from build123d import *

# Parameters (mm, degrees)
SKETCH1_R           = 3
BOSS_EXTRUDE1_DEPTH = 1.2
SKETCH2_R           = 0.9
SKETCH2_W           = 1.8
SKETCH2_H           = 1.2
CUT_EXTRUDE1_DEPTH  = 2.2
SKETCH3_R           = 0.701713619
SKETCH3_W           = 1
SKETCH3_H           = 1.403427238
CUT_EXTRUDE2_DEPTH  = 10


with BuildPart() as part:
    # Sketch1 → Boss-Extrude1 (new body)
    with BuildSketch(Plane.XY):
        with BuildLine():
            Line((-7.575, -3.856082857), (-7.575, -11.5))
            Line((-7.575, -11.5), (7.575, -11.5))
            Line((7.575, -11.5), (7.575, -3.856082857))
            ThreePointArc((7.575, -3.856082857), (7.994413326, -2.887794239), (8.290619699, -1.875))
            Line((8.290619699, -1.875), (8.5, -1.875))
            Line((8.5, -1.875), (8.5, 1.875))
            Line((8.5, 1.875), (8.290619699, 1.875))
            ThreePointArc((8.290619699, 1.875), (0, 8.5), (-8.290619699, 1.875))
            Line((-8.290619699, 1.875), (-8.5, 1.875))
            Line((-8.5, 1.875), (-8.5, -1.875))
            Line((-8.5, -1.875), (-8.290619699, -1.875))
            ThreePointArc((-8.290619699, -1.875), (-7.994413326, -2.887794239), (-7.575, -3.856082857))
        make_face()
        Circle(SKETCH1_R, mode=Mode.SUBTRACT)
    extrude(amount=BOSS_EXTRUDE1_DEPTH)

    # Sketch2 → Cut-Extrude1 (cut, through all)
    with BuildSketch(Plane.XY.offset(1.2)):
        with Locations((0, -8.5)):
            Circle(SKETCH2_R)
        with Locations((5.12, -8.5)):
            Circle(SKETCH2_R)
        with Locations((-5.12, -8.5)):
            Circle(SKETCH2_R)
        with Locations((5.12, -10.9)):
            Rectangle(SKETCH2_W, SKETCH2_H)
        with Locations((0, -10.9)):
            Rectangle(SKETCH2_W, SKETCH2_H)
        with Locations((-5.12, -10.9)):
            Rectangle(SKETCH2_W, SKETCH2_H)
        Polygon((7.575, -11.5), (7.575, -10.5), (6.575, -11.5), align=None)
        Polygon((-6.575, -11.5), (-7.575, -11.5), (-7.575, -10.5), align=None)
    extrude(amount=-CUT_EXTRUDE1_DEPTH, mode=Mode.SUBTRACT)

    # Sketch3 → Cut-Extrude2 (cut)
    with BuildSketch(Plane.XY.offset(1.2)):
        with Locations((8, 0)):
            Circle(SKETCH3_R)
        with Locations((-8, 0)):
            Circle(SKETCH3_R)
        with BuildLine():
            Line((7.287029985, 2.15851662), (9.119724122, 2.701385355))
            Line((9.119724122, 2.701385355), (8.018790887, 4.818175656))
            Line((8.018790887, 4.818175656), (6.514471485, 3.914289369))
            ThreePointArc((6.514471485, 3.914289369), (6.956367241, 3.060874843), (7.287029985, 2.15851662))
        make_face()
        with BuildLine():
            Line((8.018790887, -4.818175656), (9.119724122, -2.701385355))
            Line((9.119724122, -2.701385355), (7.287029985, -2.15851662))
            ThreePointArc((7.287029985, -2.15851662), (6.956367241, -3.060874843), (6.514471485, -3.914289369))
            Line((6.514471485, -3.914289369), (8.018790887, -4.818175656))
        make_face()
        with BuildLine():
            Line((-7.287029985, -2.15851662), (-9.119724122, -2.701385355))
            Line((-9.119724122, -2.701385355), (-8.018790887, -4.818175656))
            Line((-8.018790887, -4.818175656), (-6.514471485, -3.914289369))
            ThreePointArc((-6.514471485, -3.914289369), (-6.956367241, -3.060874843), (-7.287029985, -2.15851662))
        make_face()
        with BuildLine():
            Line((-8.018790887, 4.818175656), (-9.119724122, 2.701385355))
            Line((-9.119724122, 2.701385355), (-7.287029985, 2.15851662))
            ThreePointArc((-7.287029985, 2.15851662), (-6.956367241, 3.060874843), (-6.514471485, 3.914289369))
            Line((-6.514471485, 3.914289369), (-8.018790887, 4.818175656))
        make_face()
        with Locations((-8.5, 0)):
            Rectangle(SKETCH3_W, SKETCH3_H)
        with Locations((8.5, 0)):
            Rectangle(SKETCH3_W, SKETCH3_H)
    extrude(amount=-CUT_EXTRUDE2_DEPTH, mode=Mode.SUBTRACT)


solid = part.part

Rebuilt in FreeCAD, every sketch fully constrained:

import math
import FreeCAD as App
import Part
import Sketcher
Q = App.Units.Quantity


def add_polygon(sketch, points):
    """Adds a closed chain of lines whose ends are joined by coincident constraints."""
    first, n = sketch.GeometryCount, len(points)
    for a, b in zip(points, points[1:] + points[:1]):
        sketch.addGeometry(Part.LineSegment(App.Vector(*a, 0), App.Vector(*b, 0)), False)
    for i in range(n):
        sketch.addConstraint(Sketcher.Constraint("Coincident", first + i, 2, first + (i + 1) % n, 1))

doc = App.newDocument("Part")
body = doc.addObject("PartDesign::Body", "Body")

sketch1 = body.newObject("Sketcher::SketchObject", "Sketch")
sketch1.AttachmentSupport = (doc.getObject("XY_Plane"), [""])
sketch1.MapMode = "FlatFace"
sketch1.addGeometry([
    Part.LineSegment(App.Vector(-7.58, -3.86, 0), App.Vector(-7.58, -11.5, 0)),
    Part.LineSegment(App.Vector(-7.58, -11.5, 0), App.Vector(7.58, -11.5, 0)),
    Part.LineSegment(App.Vector(7.58, -11.5, 0), App.Vector(7.58, -3.86, 0)),
    Part.ArcOfCircle(Part.Circle(App.Vector(0, 0, 0), App.Vector(0, 0, 1), 8.5), math.radians(-26.98), math.radians(-12.74)),
    Part.LineSegment(App.Vector(8.29, -1.88, 0), App.Vector(8.5, -1.88, 0)),
    Part.LineSegment(App.Vector(8.5, -1.88, 0), App.Vector(8.5, 1.88, 0)),
    Part.LineSegment(App.Vector(8.5, 1.88, 0), App.Vector(8.29, 1.88, 0)),
    Part.ArcOfCircle(Part.Circle(App.Vector(0, 0, 0), App.Vector(0, 0, 1), 8.5), math.radians(13), math.radians(167)),
    Part.LineSegment(App.Vector(-8.29, 1.88, 0), App.Vector(-8.5, 1.88, 0)),
    Part.LineSegment(App.Vector(-8.5, 1.88, 0), App.Vector(-8.5, -1.88, 0)),
    Part.LineSegment(App.Vector(-8.5, -1.88, 0), App.Vector(-8.29, -1.88, 0)),
    Part.ArcOfCircle(Part.Circle(App.Vector(0, 0, 0), App.Vector(0, 0, 1), 8.5), math.radians(-167.26), math.radians(-153.02)),
    Part.Circle(App.Vector(0, 0, 0), App.Vector(0, 0, 1), 3),
], False)
sketch1.addConstraint([
    Sketcher.Constraint("Coincident", 0, 2, 1, 1),
    Sketcher.Constraint("Coincident", 1, 2, 2, 1),
    Sketcher.Constraint("Coincident", 2, 2, 3, 1),
    Sketcher.Constraint("Coincident", 3, 2, 4, 1),
    Sketcher.Constraint("Coincident", 4, 2, 5, 1),
    Sketcher.Constraint("Coincident", 5, 2, 6, 1),
    Sketcher.Constraint("Coincident", 6, 2, 7, 1),
    Sketcher.Constraint("Coincident", 7, 2, 8, 1),
    Sketcher.Constraint("Coincident", 8, 2, 9, 1),
    Sketcher.Constraint("Coincident", 9, 2, 10, 1),
    Sketcher.Constraint("Coincident", 10, 2, 11, 1),
    Sketcher.Constraint("Coincident", 11, 2, 0, 1),
    Sketcher.Constraint("Vertical", 0),
    Sketcher.Constraint("Horizontal", 1),
    Sketcher.Constraint("Vertical", 2),
    Sketcher.Constraint("Horizontal", 4),
    Sketcher.Constraint("Vertical", 5),
    Sketcher.Constraint("Horizontal", 6),
    Sketcher.Constraint("Horizontal", 8),
    Sketcher.Constraint("Vertical", 9),
    Sketcher.Constraint("Horizontal", 10),
    Sketcher.Constraint("Coincident", 3, 3, -1, 1),
    Sketcher.Constraint("Coincident", 7, 3, -1, 1),
    Sketcher.Constraint("Coincident", 11, 3, -1, 1),
    Sketcher.Constraint("Coincident", 12, 3, -1, 1),
    Sketcher.Constraint("Equal", 3, 7),
    Sketcher.Constraint("Equal", 7, 11),
    Sketcher.Constraint("Symmetric", 4, 2, 8, 2, -1, 1),
    Sketcher.Constraint("Horizontal", 6, 2, 7, 2),
    Sketcher.Constraint("Horizontal", 4, 2, 9, 2),
    Sketcher.Constraint("Horizontal", 2, 2, 11, 2),
    Sketcher.Constraint("Diameter", 12, 6.0),
    Sketcher.Constraint("Radius", 3, 8.5),
    Sketcher.Constraint("DistanceX", 1, 1, 1, 2, 15.15),
    Sketcher.Constraint("DistanceY", 5, 1, 5, 2, 3.75),
    Sketcher.Constraint("DistanceY", 0, 2, -1, 1, 11.5),
    Sketcher.Constraint("DistanceX", -1, 1, 4, 2, 8.5),
])
pad1 = body.newObject("PartDesign::Pad", "Pad")
pad1.Profile = sketch1
pad1.Length = 1.2

sketch2 = body.newObject("Sketcher::SketchObject", "Sketch001")
sketch2.AttachmentSupport = (doc.getObject("XY_Plane"), [""])
sketch2.MapMode = "FlatFace"
sketch2.AttachmentOffset = App.Placement(App.Vector(0, 0, 1.2), App.Rotation())
sketch2.addGeometry(Part.Circle(App.Vector(0, -8.5, 0), App.Vector(0, 0, 1), 0.9), False)
sketch2.addGeometry(Part.Circle(App.Vector(5.1, -8.5, 0), App.Vector(0, 0, 1), 0.9), False)
sketch2.addGeometry(Part.Circle(App.Vector(-5.1, -8.5, 0), App.Vector(0, 0, 1), 0.9), False)
add_polygon(sketch2, [(4.2, -10.3), (4.2, -11.5), (6, -11.5), (6, -10.3)])
add_polygon(sketch2, [(-0.9, -10.3), (-0.9, -11.5), (0.9, -11.5), (0.9, -10.3)])
add_polygon(sketch2, [(-6, -10.3), (-6, -11.5), (-4.2, -11.5), (-4.2, -10.3)])
add_polygon(sketch2, [(7.6, -11.5), (7.6, -10.5), (6.6, -11.5)])
add_polygon(sketch2, [(-7.6, -11.5), (-6.6, -11.5), (-7.6, -10.5)])
sketch2.addConstraint([
    Sketcher.Constraint("Vertical", 3),
    Sketcher.Constraint("Horizontal", 4),
    Sketcher.Constraint("Vertical", 5),
    Sketcher.Constraint("Horizontal", 6),
    Sketcher.Constraint("Vertical", 7),
    Sketcher.Constraint("Horizontal", 8),
    Sketcher.Constraint("Vertical", 9),
    Sketcher.Constraint("Horizontal", 10),
    Sketcher.Constraint("Vertical", 11),
    Sketcher.Constraint("Horizontal", 12),
    Sketcher.Constraint("Vertical", 13),
    Sketcher.Constraint("Horizontal", 14),
    Sketcher.Constraint("Vertical", 15),
    Sketcher.Constraint("Horizontal", 17),
    Sketcher.Constraint("Horizontal", 18),
    Sketcher.Constraint("Vertical", 20),
    Sketcher.Constraint("Equal", 0, 1),
    Sketcher.Constraint("Equal", 1, 2),
    Sketcher.Constraint("Symmetric", 1, 3, 2, 3, -2),
    Sketcher.Constraint("Symmetric", 4, 2, 11, 2, -2),
    Sketcher.Constraint("Symmetric", 6, 2, 13, 2, -2),
    Sketcher.Constraint("Symmetric", 16, 2, 18, 2, -2),
    Sketcher.Constraint("Symmetric", 15, 2, 19, 2, -2),
    Sketcher.Constraint("PointOnObject", 0, 3, -2),
    Sketcher.Constraint("Perpendicular", 16, 19),
    Sketcher.Constraint("Horizontal", 0, 3, 1, 3),
    Sketcher.Constraint("Horizontal", 4, 2, 7, 2),
    Sketcher.Constraint("Horizontal", 6, 2, 9, 2),
    Sketcher.Constraint("Horizontal", 12, 2, 16, 2),
    Sketcher.Constraint("Equal", 6, 8),
    Sketcher.Constraint("Diameter", 0, 1.8),
    Sketcher.Constraint("DistanceX", 17, 1, 17, 2, 1.0),
    Sketcher.Constraint("DistanceX", 4, 1, 4, 2, 1.8),
    Sketcher.Constraint("DistanceY", 3, 2, 3, 1, 1.2),
    Sketcher.Constraint("DistanceY", 3, 2, 1, 3, 3.0),
    Sketcher.Constraint("DistanceY", 0, 3, -1, 1, 8.5),
    Sketcher.Constraint("DistanceX", 7, 2, -1, 1, 0.9),
    Sketcher.Constraint("DistanceX", 3, 2, 1, 3, 0.9),
    Sketcher.Constraint("DistanceX", -1, 1, 1, 3, 5.12),
    Sketcher.Constraint("DistanceX", -1, 1, 15, 2, 7.575),
])
pocket1 = body.newObject("PartDesign::Pocket", "Pocket")
pocket1.Profile = sketch2
pocket1.Type = "ThroughAll"

sketch3 = body.newObject("Sketcher::SketchObject", "Sketch002")
sketch3.AttachmentSupport = (doc.getObject("XY_Plane"), [""])
sketch3.MapMode = "FlatFace"
sketch3.AttachmentOffset = App.Placement(App.Vector(0, 0, 1.2), App.Rotation())
sketch3.addGeometry([
    Part.LineSegment(App.Vector(8, -0.7, 0), App.Vector(9, -0.7, 0)),
    Part.LineSegment(App.Vector(9, -0.7, 0), App.Vector(9, 0.7, 0)),
    Part.LineSegment(App.Vector(9, 0.7, 0), App.Vector(8, 0.7, 0)),
    Part.ArcOfCircle(Part.Circle(App.Vector(8, 0, 0), App.Vector(0, 0, 1), 0.7), math.radians(90), math.radians(270)),
    Part.ArcOfCircle(Part.Circle(App.Vector(-8, 0, 0), App.Vector(0, 0, 1), 0.7), math.radians(-90), math.radians(90)),
    Part.LineSegment(App.Vector(-8, 0.7, 0), App.Vector(-9, 0.7, 0)),
    Part.LineSegment(App.Vector(-9, 0.7, 0), App.Vector(-9, -0.7, 0)),
    Part.LineSegment(App.Vector(-9, -0.7, 0), App.Vector(-8, -0.7, 0)),
    Part.LineSegment(App.Vector(7.3, 2.2, 0), App.Vector(9.1, 2.7, 0)),
    Part.LineSegment(App.Vector(9.1, 2.7, 0), App.Vector(8, 4.8, 0)),
    Part.LineSegment(App.Vector(8, 4.8, 0), App.Vector(6.5, 3.9, 0)),
    Part.ArcOfCircle(Part.Circle(App.Vector(0, 0, 0), App.Vector(0, 0, 1), 7.6), math.radians(16.5), math.radians(31)),
    Part.LineSegment(App.Vector(8, -4.8, 0), App.Vector(9.1, -2.7, 0)),
    Part.LineSegment(App.Vector(9.1, -2.7, 0), App.Vector(7.3, -2.2, 0)),
    Part.ArcOfCircle(Part.Circle(App.Vector(0, 0, 0), App.Vector(0, 0, 1), 7.6), math.radians(-31), math.radians(-16.5)),
    Part.LineSegment(App.Vector(6.5, -3.9, 0), App.Vector(8, -4.8, 0)),
    Part.LineSegment(App.Vector(-7.3, -2.2, 0), App.Vector(-9.1, -2.7, 0)),
    Part.LineSegment(App.Vector(-9.1, -2.7, 0), App.Vector(-8, -4.8, 0)),
    Part.LineSegment(App.Vector(-8, -4.8, 0), App.Vector(-6.5, -3.9, 0)),
    Part.ArcOfCircle(Part.Circle(App.Vector(0, 0, 0), App.Vector(0, 0, 1), 7.6), math.radians(-163.5), math.radians(-149)),
    Part.LineSegment(App.Vector(-8, 4.8, 0), App.Vector(-9.1, 2.7, 0)),
    Part.LineSegment(App.Vector(-9.1, 2.7, 0), App.Vector(-7.3, 2.2, 0)),
    Part.ArcOfCircle(Part.Circle(App.Vector(0, 0, 0), App.Vector(0, 0, 1), 7.6), math.radians(149), math.radians(163.5)),
    Part.LineSegment(App.Vector(-6.5, 3.9, 0), App.Vector(-8, 4.8, 0)),
], False)
sketch3.addConstraint([
    Sketcher.Constraint("Coincident", 0, 2, 1, 1),
    Sketcher.Constraint("Coincident", 1, 2, 2, 1),
    Sketcher.Constraint("Tangent", 2, 2, 3, 1),
    Sketcher.Constraint("Tangent", 3, 2, 0, 1),
    Sketcher.Constraint("Tangent", 4, 2, 5, 1),
    Sketcher.Constraint("Coincident", 5, 2, 6, 1),
    Sketcher.Constraint("Coincident", 6, 2, 7, 1),
    Sketcher.Constraint("Tangent", 7, 2, 4, 1),
    Sketcher.Constraint("Coincident", 8, 2, 9, 1),
    Sketcher.Constraint("Coincident", 9, 2, 10, 1),
    Sketcher.Constraint("Coincident", 10, 2, 11, 2),
    Sketcher.Constraint("Coincident", 11, 1, 8, 1),
    Sketcher.Constraint("Coincident", 12, 2, 13, 1),
    Sketcher.Constraint("Coincident", 13, 2, 14, 2),
    Sketcher.Constraint("Coincident", 14, 1, 15, 1),
    Sketcher.Constraint("Coincident", 15, 2, 12, 1),
    Sketcher.Constraint("Coincident", 16, 2, 17, 1),
    Sketcher.Constraint("Coincident", 17, 2, 18, 1),
    Sketcher.Constraint("Coincident", 18, 2, 19, 2),
    Sketcher.Constraint("Coincident", 19, 1, 16, 1),
    Sketcher.Constraint("Coincident", 20, 2, 21, 1),
    Sketcher.Constraint("Coincident", 21, 2, 22, 2),
    Sketcher.Constraint("Coincident", 22, 1, 23, 1),
    Sketcher.Constraint("Coincident", 23, 2, 20, 1),
    Sketcher.Constraint("Horizontal", 0),
    Sketcher.Constraint("Vertical", 1),
    Sketcher.Constraint("Horizontal", 2),
    Sketcher.Constraint("Horizontal", 5),
    Sketcher.Constraint("Vertical", 6),
    Sketcher.Constraint("Horizontal", 7),
    Sketcher.Constraint("Coincident", 11, 3, -1, 1),
    Sketcher.Constraint("Coincident", 14, 3, -1, 1),
    Sketcher.Constraint("Coincident", 19, 3, -1, 1),
    Sketcher.Constraint("Coincident", 22, 3, -1, 1),
    Sketcher.Constraint("Equal", 3, 4),
    Sketcher.Constraint("Equal", 11, 14),
    Sketcher.Constraint("Equal", 14, 19),
    Sketcher.Constraint("Equal", 19, 22),
    Sketcher.Constraint("Symmetric", 3, 3, 4, 3, -1, 1),
    Sketcher.Constraint("Symmetric", 8, 2, 16, 2, -1, 1),
    Sketcher.Constraint("Symmetric", 9, 2, 17, 2, -1, 1),
    Sketcher.Constraint("Symmetric", 12, 2, 20, 2, -1, 1),
    Sketcher.Constraint("Symmetric", 15, 2, 23, 2, -1, 1),
    Sketcher.Constraint("Symmetric", 1, 2, 5, 2, -2),
    Sketcher.Constraint("Symmetric", 12, 2, 16, 2, -2),
    Sketcher.Constraint("Symmetric", 15, 2, 17, 2, -2),
    Sketcher.Constraint("Parallel", 8, 16),
    Sketcher.Constraint("Parallel", 10, 18),
    Sketcher.Constraint("Parallel", 13, 21),
    Sketcher.Constraint("Parallel", 15, 23),
    Sketcher.Constraint("Horizontal", 14, 1, 18, 2),
    Sketcher.Constraint("Horizontal", 13, 2, 19, 1),
    Sketcher.Constraint("Radius", 11, 7.6),
    Sketcher.Constraint("DistanceX", 0, 1, 0, 2, 1.0),
    Sketcher.Constraint("Angle", 10, Q("-149 deg")),
    Sketcher.Constraint("DistanceX", -1, 1, 3, 3, 8.0),
    Sketcher.Constraint("Angle", 8, Q("16.5 deg")),
    Sketcher.Constraint("Radius", 3, 0.701714),
    Sketcher.Constraint("DistanceY", 0, 2, 8, 2, 3.403099),
    Sketcher.Constraint("Distance", 9, 2.38597),
    Sketcher.Constraint("Distance", 10, 1.754989),
    Sketcher.Constraint("DistanceX", -1, 1, 9, 2, 8.018791),
])
pocket2 = body.newObject("PartDesign::Pocket", "Pocket001")
pocket2.Profile = sketch3
pocket2.Length = 10

doc.recompute()
